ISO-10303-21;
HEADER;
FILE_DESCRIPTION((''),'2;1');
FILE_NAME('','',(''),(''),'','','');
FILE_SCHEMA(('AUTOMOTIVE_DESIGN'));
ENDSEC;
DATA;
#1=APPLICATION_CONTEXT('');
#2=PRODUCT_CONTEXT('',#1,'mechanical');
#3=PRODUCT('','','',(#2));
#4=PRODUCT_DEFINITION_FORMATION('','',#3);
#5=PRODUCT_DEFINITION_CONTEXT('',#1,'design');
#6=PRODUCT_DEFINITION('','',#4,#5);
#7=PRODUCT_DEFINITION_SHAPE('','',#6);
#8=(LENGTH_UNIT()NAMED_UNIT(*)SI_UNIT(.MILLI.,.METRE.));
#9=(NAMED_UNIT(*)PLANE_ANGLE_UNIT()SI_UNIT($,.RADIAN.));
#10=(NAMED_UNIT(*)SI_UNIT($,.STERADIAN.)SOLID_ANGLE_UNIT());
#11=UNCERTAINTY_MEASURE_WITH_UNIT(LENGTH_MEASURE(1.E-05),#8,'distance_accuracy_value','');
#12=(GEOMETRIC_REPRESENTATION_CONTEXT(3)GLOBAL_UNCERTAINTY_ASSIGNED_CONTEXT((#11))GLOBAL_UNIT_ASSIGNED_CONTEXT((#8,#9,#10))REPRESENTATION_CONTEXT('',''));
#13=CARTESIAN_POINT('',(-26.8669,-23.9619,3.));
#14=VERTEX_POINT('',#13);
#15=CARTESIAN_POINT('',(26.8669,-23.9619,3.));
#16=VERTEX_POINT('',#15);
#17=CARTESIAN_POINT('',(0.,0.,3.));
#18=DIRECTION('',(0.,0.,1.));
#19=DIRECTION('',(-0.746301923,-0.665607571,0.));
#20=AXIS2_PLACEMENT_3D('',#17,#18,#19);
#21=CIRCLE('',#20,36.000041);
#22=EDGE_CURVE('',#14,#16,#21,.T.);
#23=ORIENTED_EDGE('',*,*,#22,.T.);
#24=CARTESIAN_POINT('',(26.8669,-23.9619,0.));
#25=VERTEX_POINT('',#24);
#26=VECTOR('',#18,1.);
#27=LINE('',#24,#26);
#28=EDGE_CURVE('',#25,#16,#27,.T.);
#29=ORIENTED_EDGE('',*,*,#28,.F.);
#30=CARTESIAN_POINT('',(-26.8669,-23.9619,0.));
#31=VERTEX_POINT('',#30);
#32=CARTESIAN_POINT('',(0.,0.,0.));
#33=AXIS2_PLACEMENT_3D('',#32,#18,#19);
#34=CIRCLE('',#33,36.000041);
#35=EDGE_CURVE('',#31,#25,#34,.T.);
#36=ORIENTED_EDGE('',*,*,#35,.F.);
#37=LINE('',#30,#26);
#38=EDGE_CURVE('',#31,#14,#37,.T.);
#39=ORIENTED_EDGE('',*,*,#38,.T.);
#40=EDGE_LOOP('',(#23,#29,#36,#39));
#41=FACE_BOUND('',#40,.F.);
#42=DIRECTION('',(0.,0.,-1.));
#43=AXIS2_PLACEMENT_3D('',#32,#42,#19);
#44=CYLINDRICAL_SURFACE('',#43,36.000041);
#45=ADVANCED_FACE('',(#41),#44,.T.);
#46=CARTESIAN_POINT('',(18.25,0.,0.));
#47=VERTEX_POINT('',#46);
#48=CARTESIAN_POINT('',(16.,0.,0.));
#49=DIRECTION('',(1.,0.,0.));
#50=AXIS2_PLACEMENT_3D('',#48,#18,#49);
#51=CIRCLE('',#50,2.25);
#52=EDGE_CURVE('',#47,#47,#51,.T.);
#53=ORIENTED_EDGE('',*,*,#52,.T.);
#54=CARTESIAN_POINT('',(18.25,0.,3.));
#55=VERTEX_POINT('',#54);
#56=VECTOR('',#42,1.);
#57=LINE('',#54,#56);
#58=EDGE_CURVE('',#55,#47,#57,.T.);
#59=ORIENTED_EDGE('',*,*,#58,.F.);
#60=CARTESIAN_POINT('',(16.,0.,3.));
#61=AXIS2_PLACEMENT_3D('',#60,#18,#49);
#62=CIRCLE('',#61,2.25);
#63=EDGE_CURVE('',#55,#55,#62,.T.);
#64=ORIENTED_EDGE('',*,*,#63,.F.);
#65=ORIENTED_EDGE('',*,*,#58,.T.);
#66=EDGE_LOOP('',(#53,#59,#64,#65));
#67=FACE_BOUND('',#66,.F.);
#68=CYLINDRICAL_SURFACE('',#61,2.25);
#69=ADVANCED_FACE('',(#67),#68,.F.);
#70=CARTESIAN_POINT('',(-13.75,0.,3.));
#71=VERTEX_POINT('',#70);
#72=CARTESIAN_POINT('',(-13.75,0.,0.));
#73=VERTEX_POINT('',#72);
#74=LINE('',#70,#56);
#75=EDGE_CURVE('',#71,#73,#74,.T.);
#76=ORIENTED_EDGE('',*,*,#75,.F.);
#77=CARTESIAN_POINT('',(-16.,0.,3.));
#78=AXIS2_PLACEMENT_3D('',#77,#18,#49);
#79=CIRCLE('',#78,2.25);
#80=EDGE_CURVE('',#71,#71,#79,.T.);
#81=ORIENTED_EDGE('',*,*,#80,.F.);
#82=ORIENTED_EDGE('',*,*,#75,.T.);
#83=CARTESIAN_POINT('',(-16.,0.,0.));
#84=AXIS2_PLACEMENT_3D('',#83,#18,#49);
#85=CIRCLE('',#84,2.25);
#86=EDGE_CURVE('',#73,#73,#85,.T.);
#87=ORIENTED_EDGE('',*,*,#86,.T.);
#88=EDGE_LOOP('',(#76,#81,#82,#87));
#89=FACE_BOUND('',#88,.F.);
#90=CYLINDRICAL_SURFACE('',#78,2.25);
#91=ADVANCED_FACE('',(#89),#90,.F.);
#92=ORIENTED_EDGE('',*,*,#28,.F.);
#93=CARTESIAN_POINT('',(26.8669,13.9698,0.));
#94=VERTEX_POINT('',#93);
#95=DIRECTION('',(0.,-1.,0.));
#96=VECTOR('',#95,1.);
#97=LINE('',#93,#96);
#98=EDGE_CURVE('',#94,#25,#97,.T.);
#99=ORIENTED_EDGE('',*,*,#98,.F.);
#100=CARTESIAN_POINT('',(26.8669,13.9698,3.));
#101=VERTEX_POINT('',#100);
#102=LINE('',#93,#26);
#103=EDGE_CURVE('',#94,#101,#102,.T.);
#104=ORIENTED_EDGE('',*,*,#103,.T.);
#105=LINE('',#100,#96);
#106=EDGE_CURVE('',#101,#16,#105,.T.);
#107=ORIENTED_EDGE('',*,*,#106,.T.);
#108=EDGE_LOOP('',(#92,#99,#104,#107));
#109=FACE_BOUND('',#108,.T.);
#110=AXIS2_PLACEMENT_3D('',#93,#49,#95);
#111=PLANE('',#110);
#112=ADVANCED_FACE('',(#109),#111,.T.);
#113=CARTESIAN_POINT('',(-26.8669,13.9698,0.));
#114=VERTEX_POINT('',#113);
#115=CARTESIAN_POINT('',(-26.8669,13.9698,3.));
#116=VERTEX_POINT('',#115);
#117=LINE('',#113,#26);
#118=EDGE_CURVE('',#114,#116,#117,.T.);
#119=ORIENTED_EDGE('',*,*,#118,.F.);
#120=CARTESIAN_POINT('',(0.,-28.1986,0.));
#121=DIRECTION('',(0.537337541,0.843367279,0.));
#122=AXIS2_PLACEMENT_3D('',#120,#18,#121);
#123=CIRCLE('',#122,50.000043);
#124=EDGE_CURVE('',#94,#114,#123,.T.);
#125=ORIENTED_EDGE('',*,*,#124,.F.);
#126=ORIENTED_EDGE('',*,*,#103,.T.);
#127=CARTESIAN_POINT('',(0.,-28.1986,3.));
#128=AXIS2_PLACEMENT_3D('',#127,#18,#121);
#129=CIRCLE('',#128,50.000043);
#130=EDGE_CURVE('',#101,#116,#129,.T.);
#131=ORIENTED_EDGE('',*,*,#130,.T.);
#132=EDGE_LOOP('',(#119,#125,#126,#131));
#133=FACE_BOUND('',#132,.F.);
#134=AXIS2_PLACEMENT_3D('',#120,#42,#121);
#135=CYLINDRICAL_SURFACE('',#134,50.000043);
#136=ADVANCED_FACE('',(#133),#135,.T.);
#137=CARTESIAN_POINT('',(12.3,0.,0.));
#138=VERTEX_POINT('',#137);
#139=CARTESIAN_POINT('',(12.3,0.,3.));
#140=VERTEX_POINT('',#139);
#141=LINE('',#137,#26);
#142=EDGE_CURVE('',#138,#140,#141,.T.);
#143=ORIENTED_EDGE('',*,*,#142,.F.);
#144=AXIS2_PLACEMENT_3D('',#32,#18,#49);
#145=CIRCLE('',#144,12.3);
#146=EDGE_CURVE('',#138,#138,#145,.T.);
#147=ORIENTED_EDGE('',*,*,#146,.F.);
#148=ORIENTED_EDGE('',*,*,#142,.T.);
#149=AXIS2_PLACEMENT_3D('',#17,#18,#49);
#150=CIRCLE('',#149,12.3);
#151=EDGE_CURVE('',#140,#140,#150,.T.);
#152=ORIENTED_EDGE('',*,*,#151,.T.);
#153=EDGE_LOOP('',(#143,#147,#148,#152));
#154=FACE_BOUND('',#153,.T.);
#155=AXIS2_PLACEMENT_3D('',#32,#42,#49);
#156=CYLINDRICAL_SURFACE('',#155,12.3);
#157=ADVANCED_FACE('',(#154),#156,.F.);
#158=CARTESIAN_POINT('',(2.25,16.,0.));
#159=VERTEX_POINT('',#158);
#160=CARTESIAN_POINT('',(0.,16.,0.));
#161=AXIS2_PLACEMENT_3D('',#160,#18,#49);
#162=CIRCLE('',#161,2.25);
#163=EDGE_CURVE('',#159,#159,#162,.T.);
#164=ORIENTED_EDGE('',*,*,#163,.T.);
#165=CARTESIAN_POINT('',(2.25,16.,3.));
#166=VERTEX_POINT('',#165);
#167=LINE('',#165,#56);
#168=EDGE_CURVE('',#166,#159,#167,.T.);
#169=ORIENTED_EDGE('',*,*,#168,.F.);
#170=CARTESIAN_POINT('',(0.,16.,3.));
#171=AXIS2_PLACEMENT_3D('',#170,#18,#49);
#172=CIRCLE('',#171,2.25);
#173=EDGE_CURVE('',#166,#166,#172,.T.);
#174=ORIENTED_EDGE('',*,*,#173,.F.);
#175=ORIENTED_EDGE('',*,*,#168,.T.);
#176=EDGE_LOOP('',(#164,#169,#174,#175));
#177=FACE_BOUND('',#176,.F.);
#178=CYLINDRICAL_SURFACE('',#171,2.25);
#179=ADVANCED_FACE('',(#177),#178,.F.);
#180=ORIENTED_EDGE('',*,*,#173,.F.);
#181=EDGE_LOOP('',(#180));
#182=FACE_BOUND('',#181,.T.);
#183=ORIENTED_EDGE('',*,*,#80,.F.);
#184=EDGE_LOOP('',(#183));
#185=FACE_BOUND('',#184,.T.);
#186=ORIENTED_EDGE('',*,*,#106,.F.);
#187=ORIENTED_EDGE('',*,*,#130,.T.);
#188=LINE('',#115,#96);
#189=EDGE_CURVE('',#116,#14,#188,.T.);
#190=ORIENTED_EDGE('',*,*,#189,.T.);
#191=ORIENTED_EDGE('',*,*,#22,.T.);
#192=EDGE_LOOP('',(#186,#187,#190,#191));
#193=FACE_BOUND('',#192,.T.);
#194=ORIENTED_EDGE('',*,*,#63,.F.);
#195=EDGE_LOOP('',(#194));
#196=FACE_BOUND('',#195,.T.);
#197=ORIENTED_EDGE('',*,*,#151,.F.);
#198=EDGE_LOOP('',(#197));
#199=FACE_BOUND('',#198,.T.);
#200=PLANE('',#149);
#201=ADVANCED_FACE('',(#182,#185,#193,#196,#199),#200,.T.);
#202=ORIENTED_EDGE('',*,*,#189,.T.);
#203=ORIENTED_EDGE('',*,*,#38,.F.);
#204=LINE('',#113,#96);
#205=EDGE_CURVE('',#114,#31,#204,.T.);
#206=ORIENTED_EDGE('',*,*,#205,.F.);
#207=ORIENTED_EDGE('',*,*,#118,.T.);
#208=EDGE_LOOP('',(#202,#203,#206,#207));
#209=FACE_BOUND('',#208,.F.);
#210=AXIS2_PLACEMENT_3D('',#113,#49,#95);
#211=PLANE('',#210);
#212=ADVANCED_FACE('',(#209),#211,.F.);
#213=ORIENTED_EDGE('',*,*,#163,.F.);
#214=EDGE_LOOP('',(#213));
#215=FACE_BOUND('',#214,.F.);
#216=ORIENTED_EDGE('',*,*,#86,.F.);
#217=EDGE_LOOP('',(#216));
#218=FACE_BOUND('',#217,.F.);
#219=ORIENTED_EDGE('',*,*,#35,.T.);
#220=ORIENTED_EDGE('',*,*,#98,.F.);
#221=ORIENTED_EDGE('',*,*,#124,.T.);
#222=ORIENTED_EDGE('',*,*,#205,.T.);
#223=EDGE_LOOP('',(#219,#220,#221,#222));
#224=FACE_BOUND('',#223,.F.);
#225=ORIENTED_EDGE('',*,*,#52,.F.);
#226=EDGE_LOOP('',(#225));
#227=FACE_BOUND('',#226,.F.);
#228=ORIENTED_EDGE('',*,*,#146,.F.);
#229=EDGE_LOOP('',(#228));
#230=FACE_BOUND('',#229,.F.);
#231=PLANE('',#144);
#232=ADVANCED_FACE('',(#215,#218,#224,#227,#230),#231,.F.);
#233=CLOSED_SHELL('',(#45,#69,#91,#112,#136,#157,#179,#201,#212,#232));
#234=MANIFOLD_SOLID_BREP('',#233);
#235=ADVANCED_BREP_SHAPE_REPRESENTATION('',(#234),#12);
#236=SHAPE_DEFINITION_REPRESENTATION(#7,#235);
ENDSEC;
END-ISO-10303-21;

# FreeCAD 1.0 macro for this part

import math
import FreeCAD as App
import Part
import Sketcher
from FreeCAD import Vector
Q = App.Units.Quantity

doc = App.newDocument("Part")
body = doc.addObject("PartDesign::Body", "Body")

sketch1 = body.newObject("Sketcher::SketchObject", "Sketch")
sketch1.AttachmentSupport = (doc.getObject("XY_Plane"), [""])
sketch1.MapMode = "FlatFace"
sketch1.addGeometry([
    Part.LineSegment(Vector(-27, 14, 0), Vector(-27, -24, 0)),
    Part.ArcOfCircle(Part.Circle(Vector(0, 0, 0), Vector(0, 0, 1), 36), math.radians(-138), math.radians(-42)),
    Part.LineSegment(Vector(27, -24, 0), Vector(27, 14, 0)),
    Part.ArcOfCircle(Part.Circle(Vector(0, -28, 0), Vector(0, 0, 1), 50), math.radians(57), math.radians(123)),
    Part.Circle(Vector(0, 0, 0), Vector(0, 0, 1), 12),
], False)
sketch1.addConstraint([
    Sketcher.Constraint("Coincident", 0, 2, 1, 1),
    Sketcher.Constraint("Coincident", 1, 2, 2, 1),
    Sketcher.Constraint("Coincident", 2, 2, 3, 1),
    Sketcher.Constraint("Coincident", 3, 2, 0, 1),
    Sketcher.Constraint("Vertical", 0),
    Sketcher.Constraint("Vertical", 2),
    Sketcher.Constraint("Coincident", 1, 3, -1, 1),
    Sketcher.Constraint("Coincident", 4, 3, -1, 1),
    Sketcher.Constraint("Symmetric", 2, 2, 3, 2, -2),
    Sketcher.Constraint("Radius", 1, Q("36 mm")),
    Sketcher.Constraint("Radius", 3, Q("50 mm")),
    Sketcher.Constraint("Diameter", 4, Q("24.6 mm")),
    Sketcher.Constraint("DistanceY", 0, 2, 0, 1, Q("37.9317 mm")),
    Sketcher.Constraint("DistanceX", 0, 2, -1, 1, Q("26.867 mm")),
])
pad1 = body.newObject("PartDesign::Pad", "Pad")
pad1.Profile = sketch1
pad1.Length = 3

sketch2 = body.newObject("Sketcher::SketchObject", "Sketch001")
sketch2.AttachmentSupport = (doc.getObject("XY_Plane"), [""])
sketch2.MapMode = "FlatFace"
sketch2.AttachmentOffset = App.Placement(Vector(0, 0, 3), App.Rotation())
sketch2.addGeometry([
    Part.Circle(Vector(-16, 0, 0), Vector(0, 0, 1), 2.2),
    Part.Circle(Vector(16, 0, 0), Vector(0, 0, 1), 2.2),
    Part.Circle(Vector(0, 16, 0), Vector(0, 0, 1), 2.2),
], False)
sketch2.addConstraint([
    Sketcher.Constraint("Equal", 0, 1),
    Sketcher.Constraint("Equal", 1, 2),
    Sketcher.Constraint("Symmetric", 0, 3, 1, 3, -1, 1),
    Sketcher.Constraint("PointOnObject", 0, 3, -1),
    Sketcher.Constraint("PointOnObject", 2, 3, -2),
    Sketcher.Constraint("Diameter", 0, Q("4.5 mm")),
    Sketcher.Constraint("DistanceX", 0, 3, -1, 1, Q("16 mm")),
    Sketcher.Constraint("DistanceY", -1, 1, 2, 3, Q("16 mm")),
])
pocket1 = body.newObject("PartDesign::Pocket", "Pocket")
pocket1.Profile = sketch2
pocket1.Length = 3

doc.recompute()
